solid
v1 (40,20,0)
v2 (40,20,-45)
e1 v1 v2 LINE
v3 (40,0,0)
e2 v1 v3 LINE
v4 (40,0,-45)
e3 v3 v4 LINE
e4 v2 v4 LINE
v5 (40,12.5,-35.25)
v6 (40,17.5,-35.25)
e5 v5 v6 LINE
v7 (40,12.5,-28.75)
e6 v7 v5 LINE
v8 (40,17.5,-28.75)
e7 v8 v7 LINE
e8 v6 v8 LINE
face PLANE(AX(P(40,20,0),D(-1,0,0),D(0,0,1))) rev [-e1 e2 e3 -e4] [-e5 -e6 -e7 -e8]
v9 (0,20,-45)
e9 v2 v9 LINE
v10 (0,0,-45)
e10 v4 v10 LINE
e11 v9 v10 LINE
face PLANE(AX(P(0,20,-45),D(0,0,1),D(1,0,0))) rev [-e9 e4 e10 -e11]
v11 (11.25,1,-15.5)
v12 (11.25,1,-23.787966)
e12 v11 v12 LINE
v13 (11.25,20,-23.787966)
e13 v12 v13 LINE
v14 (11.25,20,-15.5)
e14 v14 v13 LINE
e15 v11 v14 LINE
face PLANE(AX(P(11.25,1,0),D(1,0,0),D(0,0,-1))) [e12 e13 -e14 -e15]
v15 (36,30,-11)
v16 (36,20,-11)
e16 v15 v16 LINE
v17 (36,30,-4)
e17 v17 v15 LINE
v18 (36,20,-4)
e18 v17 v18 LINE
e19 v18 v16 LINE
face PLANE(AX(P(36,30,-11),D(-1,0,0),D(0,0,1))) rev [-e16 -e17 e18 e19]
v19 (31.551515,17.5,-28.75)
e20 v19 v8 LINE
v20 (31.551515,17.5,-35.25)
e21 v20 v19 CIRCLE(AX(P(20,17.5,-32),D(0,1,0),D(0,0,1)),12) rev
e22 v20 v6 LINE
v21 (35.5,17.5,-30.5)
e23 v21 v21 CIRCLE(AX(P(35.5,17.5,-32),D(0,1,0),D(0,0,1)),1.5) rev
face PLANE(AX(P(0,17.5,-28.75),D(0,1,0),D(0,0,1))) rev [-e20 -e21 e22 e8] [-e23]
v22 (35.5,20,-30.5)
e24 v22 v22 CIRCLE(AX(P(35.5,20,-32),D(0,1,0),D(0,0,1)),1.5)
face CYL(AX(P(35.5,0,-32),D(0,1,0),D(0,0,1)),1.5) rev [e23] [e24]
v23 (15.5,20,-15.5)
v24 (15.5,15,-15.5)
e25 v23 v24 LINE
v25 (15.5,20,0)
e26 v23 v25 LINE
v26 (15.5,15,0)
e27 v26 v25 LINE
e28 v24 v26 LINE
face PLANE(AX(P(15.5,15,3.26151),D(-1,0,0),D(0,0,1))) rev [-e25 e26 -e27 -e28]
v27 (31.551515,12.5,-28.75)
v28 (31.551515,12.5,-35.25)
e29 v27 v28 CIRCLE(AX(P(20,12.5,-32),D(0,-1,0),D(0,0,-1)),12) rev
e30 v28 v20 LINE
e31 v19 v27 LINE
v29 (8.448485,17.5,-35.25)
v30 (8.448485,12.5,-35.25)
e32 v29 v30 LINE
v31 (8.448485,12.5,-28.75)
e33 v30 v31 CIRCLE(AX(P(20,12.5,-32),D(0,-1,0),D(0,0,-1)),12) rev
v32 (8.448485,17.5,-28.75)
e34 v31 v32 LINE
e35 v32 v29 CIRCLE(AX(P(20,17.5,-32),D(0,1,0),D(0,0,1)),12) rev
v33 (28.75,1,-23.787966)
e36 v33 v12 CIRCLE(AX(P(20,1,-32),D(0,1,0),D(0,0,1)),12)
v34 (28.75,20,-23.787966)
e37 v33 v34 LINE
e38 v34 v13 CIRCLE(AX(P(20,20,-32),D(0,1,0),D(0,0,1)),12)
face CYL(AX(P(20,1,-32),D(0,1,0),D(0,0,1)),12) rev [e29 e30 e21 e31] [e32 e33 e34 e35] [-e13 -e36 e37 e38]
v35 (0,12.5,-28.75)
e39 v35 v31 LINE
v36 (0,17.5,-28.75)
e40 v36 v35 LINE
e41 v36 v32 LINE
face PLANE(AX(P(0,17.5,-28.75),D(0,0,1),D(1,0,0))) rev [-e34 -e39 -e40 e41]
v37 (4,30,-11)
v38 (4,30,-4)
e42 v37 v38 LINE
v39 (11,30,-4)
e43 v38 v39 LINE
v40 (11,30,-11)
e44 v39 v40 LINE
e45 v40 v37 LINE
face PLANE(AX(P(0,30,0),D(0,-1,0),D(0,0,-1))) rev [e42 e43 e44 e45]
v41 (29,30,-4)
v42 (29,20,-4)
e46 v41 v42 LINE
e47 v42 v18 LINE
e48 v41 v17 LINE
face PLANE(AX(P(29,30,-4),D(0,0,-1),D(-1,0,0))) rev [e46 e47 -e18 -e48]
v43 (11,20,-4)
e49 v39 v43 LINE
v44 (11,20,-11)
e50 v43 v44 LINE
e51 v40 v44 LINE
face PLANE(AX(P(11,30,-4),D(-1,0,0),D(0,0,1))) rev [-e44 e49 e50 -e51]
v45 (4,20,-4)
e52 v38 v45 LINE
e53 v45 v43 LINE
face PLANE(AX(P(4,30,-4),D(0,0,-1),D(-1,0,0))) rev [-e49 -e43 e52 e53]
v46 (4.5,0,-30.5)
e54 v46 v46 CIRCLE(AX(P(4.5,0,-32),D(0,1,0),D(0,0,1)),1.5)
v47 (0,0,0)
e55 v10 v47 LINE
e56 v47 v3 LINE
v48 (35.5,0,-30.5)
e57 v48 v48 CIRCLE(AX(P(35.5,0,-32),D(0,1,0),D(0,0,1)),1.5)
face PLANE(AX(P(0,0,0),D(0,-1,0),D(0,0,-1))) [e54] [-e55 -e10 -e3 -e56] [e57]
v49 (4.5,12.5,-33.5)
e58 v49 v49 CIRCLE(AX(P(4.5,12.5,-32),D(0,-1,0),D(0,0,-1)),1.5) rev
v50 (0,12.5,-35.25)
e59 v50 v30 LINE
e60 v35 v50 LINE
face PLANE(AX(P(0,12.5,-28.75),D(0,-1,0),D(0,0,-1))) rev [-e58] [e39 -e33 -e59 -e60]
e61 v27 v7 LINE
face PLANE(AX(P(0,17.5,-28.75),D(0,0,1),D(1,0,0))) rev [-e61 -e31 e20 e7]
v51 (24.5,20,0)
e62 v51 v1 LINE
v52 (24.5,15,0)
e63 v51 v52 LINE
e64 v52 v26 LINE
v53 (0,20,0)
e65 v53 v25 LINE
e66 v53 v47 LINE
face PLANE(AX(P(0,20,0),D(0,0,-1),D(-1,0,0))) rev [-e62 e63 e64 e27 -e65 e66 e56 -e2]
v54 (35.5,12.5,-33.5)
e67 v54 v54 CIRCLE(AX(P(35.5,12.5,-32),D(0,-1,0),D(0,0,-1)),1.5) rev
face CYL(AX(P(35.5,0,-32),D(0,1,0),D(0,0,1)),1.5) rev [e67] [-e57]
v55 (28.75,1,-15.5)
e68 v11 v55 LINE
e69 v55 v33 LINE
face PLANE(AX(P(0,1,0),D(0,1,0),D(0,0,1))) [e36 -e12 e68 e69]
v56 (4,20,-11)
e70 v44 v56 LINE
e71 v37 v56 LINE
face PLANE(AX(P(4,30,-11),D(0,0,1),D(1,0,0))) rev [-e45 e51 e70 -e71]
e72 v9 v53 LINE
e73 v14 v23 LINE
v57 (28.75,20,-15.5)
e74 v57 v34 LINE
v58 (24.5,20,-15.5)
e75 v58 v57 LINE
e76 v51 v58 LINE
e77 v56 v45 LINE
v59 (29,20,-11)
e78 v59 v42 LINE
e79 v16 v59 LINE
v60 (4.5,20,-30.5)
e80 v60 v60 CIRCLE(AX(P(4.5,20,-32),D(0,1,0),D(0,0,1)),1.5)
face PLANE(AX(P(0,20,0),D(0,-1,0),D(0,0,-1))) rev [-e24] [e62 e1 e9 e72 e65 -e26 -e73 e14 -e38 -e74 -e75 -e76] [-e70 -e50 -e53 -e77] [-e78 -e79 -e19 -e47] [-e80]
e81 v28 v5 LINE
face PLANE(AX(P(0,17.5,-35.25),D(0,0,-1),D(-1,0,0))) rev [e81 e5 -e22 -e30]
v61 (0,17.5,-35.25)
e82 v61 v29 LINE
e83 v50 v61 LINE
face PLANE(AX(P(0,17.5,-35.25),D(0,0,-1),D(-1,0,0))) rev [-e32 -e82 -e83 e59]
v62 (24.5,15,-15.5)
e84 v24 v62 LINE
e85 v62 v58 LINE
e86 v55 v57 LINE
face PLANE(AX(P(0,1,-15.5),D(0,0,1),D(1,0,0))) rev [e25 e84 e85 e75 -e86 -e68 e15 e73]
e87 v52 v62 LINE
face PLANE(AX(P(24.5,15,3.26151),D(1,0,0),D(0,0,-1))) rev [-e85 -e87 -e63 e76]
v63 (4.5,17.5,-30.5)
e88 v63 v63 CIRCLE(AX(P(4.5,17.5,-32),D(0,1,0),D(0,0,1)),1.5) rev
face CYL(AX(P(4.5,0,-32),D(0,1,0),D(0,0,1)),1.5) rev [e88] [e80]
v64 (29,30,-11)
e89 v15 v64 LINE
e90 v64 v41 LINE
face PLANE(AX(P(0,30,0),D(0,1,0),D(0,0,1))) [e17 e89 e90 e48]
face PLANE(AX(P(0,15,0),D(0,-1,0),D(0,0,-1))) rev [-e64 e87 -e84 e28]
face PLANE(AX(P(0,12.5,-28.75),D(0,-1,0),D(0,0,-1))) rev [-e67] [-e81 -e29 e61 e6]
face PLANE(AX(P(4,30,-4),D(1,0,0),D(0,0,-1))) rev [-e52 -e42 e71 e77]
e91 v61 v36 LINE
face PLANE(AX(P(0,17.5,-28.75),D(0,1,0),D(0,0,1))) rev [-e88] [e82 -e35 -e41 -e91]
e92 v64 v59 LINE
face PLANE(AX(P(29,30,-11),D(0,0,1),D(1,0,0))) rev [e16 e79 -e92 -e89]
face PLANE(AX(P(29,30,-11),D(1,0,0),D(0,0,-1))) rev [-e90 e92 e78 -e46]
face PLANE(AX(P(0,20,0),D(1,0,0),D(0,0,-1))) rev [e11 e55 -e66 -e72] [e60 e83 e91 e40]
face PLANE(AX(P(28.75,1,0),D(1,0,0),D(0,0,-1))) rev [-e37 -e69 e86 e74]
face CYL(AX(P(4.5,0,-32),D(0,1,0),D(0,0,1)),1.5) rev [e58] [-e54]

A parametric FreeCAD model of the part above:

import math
import FreeCAD as App
import Part
import Sketcher
Q = App.Units.Quantity

doc = App.newDocument("Part")
body = doc.addObject("PartDesign::Body", "Body")

sketch1 = body.newObject("Sketcher::SketchObject", "Sketch")
sketch1.AttachmentSupport = (doc.getObject("XZ_Plane"), [""])
sketch1.MapMode = "FlatFace"
sketch1.addGeometry(Part.LineSegment(App.Vector(0, -45, 0), App.Vector(0, 0, 0)), False)
sketch1.addGeometry(Part.LineSegment(App.Vector(0, 0, 0), App.Vector(40, 0, 0)), False)
sketch1.addGeometry(Part.LineSegment(App.Vector(40, 0, 0), App.Vector(40, -45, 0)), False)
sketch1.addGeometry(Part.LineSegment(App.Vector(40, -45, 0), App.Vector(0, -45, 0)), False)
sketch1.addConstraint(Sketcher.Constraint("Coincident", 0, 2, 1, 1))
sketch1.addConstraint(Sketcher.Constraint("Coincident", 1, 2, 2, 1))
sketch1.addConstraint(Sketcher.Constraint("Coincident", 2, 2, 3, 1))
sketch1.addConstraint(Sketcher.Constraint("Coincident", 3, 2, 0, 1))
sketch1.addConstraint(Sketcher.Constraint("Vertical", 0))
sketch1.addConstraint(Sketcher.Constraint("Horizontal", 1))
sketch1.addConstraint(Sketcher.Constraint("Vertical", 2))
sketch1.addConstraint(Sketcher.Constraint("Horizontal", 3))
sketch1.addConstraint(Sketcher.Constraint("Coincident", 0, 2, -1, 1))
sketch1.addConstraint(Sketcher.Constraint("DistanceX", 1, 1, 1, 2, Q("40 mm")))
sketch1.addConstraint(Sketcher.Constraint("DistanceY", 0, 1, 0, 2, Q("45 mm")))
pad1 = body.newObject("PartDesign::Pad", "Pad")
pad1.Profile = sketch1
pad1.Length = 20
pad1.Reversed = True

sketch2 = body.newObject("Sketcher::SketchObject", "Sketch001")
sketch2.AttachmentSupport = (doc.getObject("XZ_Plane"), [""])
sketch2.MapMode = "FlatFace"
sketch2.AttachmentOffset = App.Placement(App.Vector(0, 0, -20), App.Rotation())
sketch2.addGeometry(Part.ArcOfCircle(Part.Circle(App.Vector(20, -32, 0), App.Vector(0, 0, 1), 12), math.radians(137), math.radians(403)), False)
sketch2.addGeometry(Part.LineSegment(App.Vector(11, -24, 0), App.Vector(11, -16, 0)), False)
sketch2.addGeometry(Part.LineSegment(App.Vector(11, -16, 0), App.Vector(29, -16, 0)), False)
sketch2.addGeometry(Part.LineSegment(App.Vector(29, -16, 0), App.Vector(29, -24, 0)), False)
sketch2.addConstraint(Sketcher.Constraint("Coincident", 0, 1, 1, 1))
sketch2.addConstraint(Sketcher.Constraint("Coincident", 1, 2, 2, 1))
sketch2.addConstraint(Sketcher.Constraint("Coincident", 2, 2, 3, 1))
sketch2.addConstraint(Sketcher.Constraint("Coincident", 3, 2, 0, 2))
sketch2.addConstraint(Sketcher.Constraint("Vertical", 1))
sketch2.addConstraint(Sketcher.Constraint("Horizontal", 2))
sketch2.addConstraint(Sketcher.Constraint("Vertical", 3))
sketch2.addConstraint(Sketcher.Constraint("Horizontal", 0, 1, 3, 2))
sketch2.addConstraint(Sketcher.Constraint("Radius", 0, Q("12 mm")))
sketch2.addConstraint(Sketcher.Constraint("DistanceX", 2, 1, 2, 2, Q("17.5 mm")))
sketch2.addConstraint(Sketcher.Constraint("DistanceX", -1, 1, 0, 3, Q("20 mm")))
sketch2.addConstraint(Sketcher.Constraint("DistanceY", 0, 3, -1, 1, Q("32 mm")))
sketch2.addConstraint(Sketcher.Constraint("DistanceY", 1, 2, -1, 1, Q("15.5 mm")))
pocket1 = body.newObject("PartDesign::Pocket", "Pocket")
pocket1.Profile = sketch2
pocket1.Length = 19
pocket1.Reversed = True

sketch3 = body.newObject("Sketcher::SketchObject", "Sketch002")
sketch3.AttachmentSupport = (doc.getObject("XZ_Plane"), [""])
sketch3.MapMode = "FlatFace"
sketch3.AttachmentOffset = App.Placement(App.Vector(0, 0, -20), App.Rotation())
sketch3.addGeometry(Part.Circle(App.Vector(4.5, -32, 0), App.Vector(0, 0, 1), 1.5), False)
sketch3.addGeometry(Part.Circle(App.Vector(35.5, -32, 0), App.Vector(0, 0, 1), 1.5), False)
sketch3.addConstraint(Sketcher.Constraint("Equal", 0, 1))
sketch3.addConstraint(Sketcher.Constraint("Horizontal", 0, 3, 1, 3))
sketch3.addConstraint(Sketcher.Constraint("Diameter", 0, Q("3 mm")))
sketch3.addConstraint(Sketcher.Constraint("DistanceY", 0, 3, -1, 1, Q("32 mm")))
sketch3.addConstraint(Sketcher.Constraint("DistanceX", 0, 3, 1, 3, Q("31 mm")))
sketch3.addConstraint(Sketcher.Constraint("DistanceX", -1, 1, 0, 3, Q("4.5 mm")))
pocket2 = body.newObject("PartDesign::Pocket", "Pocket001")
pocket2.Profile = sketch3
pocket2.Type = "ThroughAll"
pocket2.Reversed = True

sketch4 = body.newObject("Sketcher::SketchObject", "Sketch003")
sketch4.AttachmentSupport = (doc.getObject("YZ_Plane"), [""])
sketch4.MapMode = "FlatFace"
sketch4.AttachmentOffset = App.Placement(App.Vector(0, 0, 40), App.Rotation())
sketch4.addGeometry(Part.LineSegment(App.Vector(18, -29, 0), App.Vector(12, -29, 0)), False)
sketch4.addGeometry(Part.LineSegment(App.Vector(12, -29, 0), App.Vector(12, -35, 0)), False)
sketch4.addGeometry(Part.LineSegment(App.Vector(12, -35, 0), App.Vector(18, -35, 0)), False)
sketch4.addGeometry(Part.LineSegment(App.Vector(18, -35, 0), App.Vector(18, -29, 0)), False)
sketch4.addConstraint(Sketcher.Constraint("Coincident", 0, 2, 1, 1))
sketch4.addConstraint(Sketcher.Constraint("Coincident", 1, 2, 2, 1))
sketch4.addConstraint(Sketcher.Constraint("Coincident", 2, 2, 3, 1))
sketch4.addConstraint(Sketcher.Constraint("Coincident", 3, 2, 0, 1))
sketch4.addConstraint(Sketcher.Constraint("Horizontal", 0))
sketch4.addConstraint(Sketcher.Constraint("Vertical", 1))
sketch4.addConstraint(Sketcher.Constraint("Horizontal", 2))
sketch4.addConstraint(Sketcher.Constraint("Vertical", 3))
sketch4.addConstraint(Sketcher.Constraint("DistanceX", 0, 2, 0, 1, Q("5 mm")))
sketch4.addConstraint(Sketcher.Constraint("DistanceY", 1, 2, 1, 1, Q("6.5 mm")))
sketch4.addConstraint(Sketcher.Constraint("DistanceX", -1, 1, 0, 2, Q("12.5 mm")))
sketch4.addConstraint(Sketcher.Constraint("DistanceY", 0, 2, -1, 1, Q("28.75 mm")))
pocket3 = body.newObject("PartDesign::Pocket", "Pocket002")
pocket3.Profile = sketch4
pocket3.Type = "ThroughAll"

sketch5 = body.newObject("Sketcher::SketchObject", "Sketch004")
sketch5.AttachmentSupport = (doc.getObject("XZ_Plane"), [""])
sketch5.MapMode = "FlatFace"
sketch5.AttachmentOffset = App.Placement(App.Vector(0, 0, -20), App.Rotation())
sketch5.addGeometry(Part.LineSegment(App.Vector(16, -18, 0), App.Vector(16, 3, 0)), False)
sketch5.addGeometry(Part.LineSegment(App.Vector(16, 3, 0), App.Vector(24, 3, 0)), False)
sketch5.addGeometry(Part.LineSegment(App.Vector(24, 3, 0), App.Vector(24, -18, 0)), False)
sketch5.addGeometry(Part.LineSegment(App.Vector(24, -18, 0), App.Vector(16, -18, 0)), False)
sketch5.addConstraint(Sketcher.Constraint("Coincident", 0, 2, 1, 1))
sketch5.addConstraint(Sketcher.Constraint("Coincident", 1, 2, 2, 1))
sketch5.addConstraint(Sketcher.Constraint("Coincident", 2, 2, 3, 1))
sketch5.addConstraint(Sketcher.Constraint("Coincident", 3, 2, 0, 1))
sketch5.addConstraint(Sketcher.Constraint("Vertical", 0))
sketch5.addConstraint(Sketcher.Constraint("Horizontal", 1))
sketch5.addConstraint(Sketcher.Constraint("Vertical", 2))
sketch5.addConstraint(Sketcher.Constraint("Horizontal", 3))
sketch5.addConstraint(Sketcher.Constraint("DistanceX", 1, 1, 1, 2, Q("9 mm")))
sketch5.addConstraint(Sketcher.Constraint("DistanceX", -1, 1, 0, 2, Q("15.5 mm")))
sketch5.addConstraint(Sketcher.Constraint("DistanceY", 0, 1, 0, 2, Q("21.613382 mm")))
sketch5.addConstraint(Sketcher.Constraint("DistanceY", -1, 1, 0, 2, Q("3.26151 mm")))
pocket4 = body.newObject("PartDesign::Pocket", "Pocket003")
pocket4.Profile = sketch5
pocket4.Length = 5
pocket4.Reversed = True

sketch6 = body.newObject("Sketcher::SketchObject", "Sketch005")
sketch6.AttachmentSupport = (doc.getObject("XZ_Plane"), [""])
sketch6.MapMode = "FlatFace"
sketch6.AttachmentOffset = App.Placement(App.Vector(0, 0, -20), App.Rotation())
sketch6.addGeometry(Part.LineSegment(App.Vector(29, -11, 0), App.Vector(29, -4, 0)), False)
sketch6.addGeometry(Part.LineSegment(App.Vector(29, -4, 0), App.Vector(36, -4, 0)), False)
sketch6.addGeometry(Part.LineSegment(App.Vector(36, -4, 0), App.Vector(36, -11, 0)), False)
sketch6.addGeometry(Part.LineSegment(App.Vector(36, -11, 0), App.Vector(29, -11, 0)), False)
sketch6.addGeometry(Part.LineSegment(App.Vector(4, -11, 0), App.Vector(4, -4, 0)), False)
sketch6.addGeometry(Part.LineSegment(App.Vector(4, -4, 0), App.Vector(11, -4, 0)), False)
sketch6.addGeometry(Part.LineSegment(App.Vector(11, -4, 0), App.Vector(11, -11, 0)), False)
sketch6.addGeometry(Part.LineSegment(App.Vector(11, -11, 0), App.Vector(4, -11, 0)), False)
sketch6.addConstraint(Sketcher.Constraint("Coincident", 0, 2, 1, 1))
sketch6.addConstraint(Sketcher.Constraint("Coincident", 1, 2, 2, 1))
sketch6.addConstraint(Sketcher.Constraint("Coincident", 2, 2, 3, 1))
sketch6.addConstraint(Sketcher.Constraint("Coincident", 3, 2, 0, 1))
sketch6.addConstraint(Sketcher.Constraint("Coincident", 4, 2, 5, 1))
sketch6.addConstraint(Sketcher.Constraint("Coincident", 5, 2, 6, 1))
sketch6.addConstraint(Sketcher.Constraint("Coincident", 6, 2, 7, 1))
sketch6.addConstraint(Sketcher.Constraint("Coincident", 7, 2, 4, 1))
sketch6.addConstraint(Sketcher.Constraint("Vertical", 0))
sketch6.addConstraint(Sketcher.Constraint("Horizontal", 1))
sketch6.addConstraint(Sketcher.Constraint("Vertical", 2))
sketch6.addConstraint(Sketcher.Constraint("Horizontal", 3))
sketch6.addConstraint(Sketcher.Constraint("Vertical", 4))
sketch6.addConstraint(Sketcher.Constraint("Horizontal", 5))
sketch6.addConstraint(Sketcher.Constraint("Vertical", 6))
sketch6.addConstraint(Sketcher.Constraint("Horizontal", 7))
sketch6.addConstraint(Sketcher.Constraint("Horizontal", 1, 2, 4, 2))
sketch6.addConstraint(Sketcher.Constraint("Horizontal", 3, 2, 6, 2))
sketch6.addConstraint(Sketcher.Constraint("Equal", 3, 5))
sketch6.addConstraint(Sketcher.Constraint("Equal", 7, 0))
sketch6.addConstraint(Sketcher.Constraint("DistanceX", 1, 1, 1, 2, Q("7 mm")))
sketch6.addConstraint(Sketcher.Constraint("DistanceX", -1, 1, 0, 2, Q("29 mm")))
sketch6.addConstraint(Sketcher.Constraint("DistanceY", 0, 2, -1, 1, Q("4 mm")))
sketch6.addConstraint(Sketcher.Constraint("DistanceX", -1, 1, 4, 2, Q("4 mm")))
pad2 = body.newObject("PartDesign::Pad", "Pad001")
pad2.Profile = sketch6
pad2.Length = 10
pad2.Reversed = True

doc.recompute()
